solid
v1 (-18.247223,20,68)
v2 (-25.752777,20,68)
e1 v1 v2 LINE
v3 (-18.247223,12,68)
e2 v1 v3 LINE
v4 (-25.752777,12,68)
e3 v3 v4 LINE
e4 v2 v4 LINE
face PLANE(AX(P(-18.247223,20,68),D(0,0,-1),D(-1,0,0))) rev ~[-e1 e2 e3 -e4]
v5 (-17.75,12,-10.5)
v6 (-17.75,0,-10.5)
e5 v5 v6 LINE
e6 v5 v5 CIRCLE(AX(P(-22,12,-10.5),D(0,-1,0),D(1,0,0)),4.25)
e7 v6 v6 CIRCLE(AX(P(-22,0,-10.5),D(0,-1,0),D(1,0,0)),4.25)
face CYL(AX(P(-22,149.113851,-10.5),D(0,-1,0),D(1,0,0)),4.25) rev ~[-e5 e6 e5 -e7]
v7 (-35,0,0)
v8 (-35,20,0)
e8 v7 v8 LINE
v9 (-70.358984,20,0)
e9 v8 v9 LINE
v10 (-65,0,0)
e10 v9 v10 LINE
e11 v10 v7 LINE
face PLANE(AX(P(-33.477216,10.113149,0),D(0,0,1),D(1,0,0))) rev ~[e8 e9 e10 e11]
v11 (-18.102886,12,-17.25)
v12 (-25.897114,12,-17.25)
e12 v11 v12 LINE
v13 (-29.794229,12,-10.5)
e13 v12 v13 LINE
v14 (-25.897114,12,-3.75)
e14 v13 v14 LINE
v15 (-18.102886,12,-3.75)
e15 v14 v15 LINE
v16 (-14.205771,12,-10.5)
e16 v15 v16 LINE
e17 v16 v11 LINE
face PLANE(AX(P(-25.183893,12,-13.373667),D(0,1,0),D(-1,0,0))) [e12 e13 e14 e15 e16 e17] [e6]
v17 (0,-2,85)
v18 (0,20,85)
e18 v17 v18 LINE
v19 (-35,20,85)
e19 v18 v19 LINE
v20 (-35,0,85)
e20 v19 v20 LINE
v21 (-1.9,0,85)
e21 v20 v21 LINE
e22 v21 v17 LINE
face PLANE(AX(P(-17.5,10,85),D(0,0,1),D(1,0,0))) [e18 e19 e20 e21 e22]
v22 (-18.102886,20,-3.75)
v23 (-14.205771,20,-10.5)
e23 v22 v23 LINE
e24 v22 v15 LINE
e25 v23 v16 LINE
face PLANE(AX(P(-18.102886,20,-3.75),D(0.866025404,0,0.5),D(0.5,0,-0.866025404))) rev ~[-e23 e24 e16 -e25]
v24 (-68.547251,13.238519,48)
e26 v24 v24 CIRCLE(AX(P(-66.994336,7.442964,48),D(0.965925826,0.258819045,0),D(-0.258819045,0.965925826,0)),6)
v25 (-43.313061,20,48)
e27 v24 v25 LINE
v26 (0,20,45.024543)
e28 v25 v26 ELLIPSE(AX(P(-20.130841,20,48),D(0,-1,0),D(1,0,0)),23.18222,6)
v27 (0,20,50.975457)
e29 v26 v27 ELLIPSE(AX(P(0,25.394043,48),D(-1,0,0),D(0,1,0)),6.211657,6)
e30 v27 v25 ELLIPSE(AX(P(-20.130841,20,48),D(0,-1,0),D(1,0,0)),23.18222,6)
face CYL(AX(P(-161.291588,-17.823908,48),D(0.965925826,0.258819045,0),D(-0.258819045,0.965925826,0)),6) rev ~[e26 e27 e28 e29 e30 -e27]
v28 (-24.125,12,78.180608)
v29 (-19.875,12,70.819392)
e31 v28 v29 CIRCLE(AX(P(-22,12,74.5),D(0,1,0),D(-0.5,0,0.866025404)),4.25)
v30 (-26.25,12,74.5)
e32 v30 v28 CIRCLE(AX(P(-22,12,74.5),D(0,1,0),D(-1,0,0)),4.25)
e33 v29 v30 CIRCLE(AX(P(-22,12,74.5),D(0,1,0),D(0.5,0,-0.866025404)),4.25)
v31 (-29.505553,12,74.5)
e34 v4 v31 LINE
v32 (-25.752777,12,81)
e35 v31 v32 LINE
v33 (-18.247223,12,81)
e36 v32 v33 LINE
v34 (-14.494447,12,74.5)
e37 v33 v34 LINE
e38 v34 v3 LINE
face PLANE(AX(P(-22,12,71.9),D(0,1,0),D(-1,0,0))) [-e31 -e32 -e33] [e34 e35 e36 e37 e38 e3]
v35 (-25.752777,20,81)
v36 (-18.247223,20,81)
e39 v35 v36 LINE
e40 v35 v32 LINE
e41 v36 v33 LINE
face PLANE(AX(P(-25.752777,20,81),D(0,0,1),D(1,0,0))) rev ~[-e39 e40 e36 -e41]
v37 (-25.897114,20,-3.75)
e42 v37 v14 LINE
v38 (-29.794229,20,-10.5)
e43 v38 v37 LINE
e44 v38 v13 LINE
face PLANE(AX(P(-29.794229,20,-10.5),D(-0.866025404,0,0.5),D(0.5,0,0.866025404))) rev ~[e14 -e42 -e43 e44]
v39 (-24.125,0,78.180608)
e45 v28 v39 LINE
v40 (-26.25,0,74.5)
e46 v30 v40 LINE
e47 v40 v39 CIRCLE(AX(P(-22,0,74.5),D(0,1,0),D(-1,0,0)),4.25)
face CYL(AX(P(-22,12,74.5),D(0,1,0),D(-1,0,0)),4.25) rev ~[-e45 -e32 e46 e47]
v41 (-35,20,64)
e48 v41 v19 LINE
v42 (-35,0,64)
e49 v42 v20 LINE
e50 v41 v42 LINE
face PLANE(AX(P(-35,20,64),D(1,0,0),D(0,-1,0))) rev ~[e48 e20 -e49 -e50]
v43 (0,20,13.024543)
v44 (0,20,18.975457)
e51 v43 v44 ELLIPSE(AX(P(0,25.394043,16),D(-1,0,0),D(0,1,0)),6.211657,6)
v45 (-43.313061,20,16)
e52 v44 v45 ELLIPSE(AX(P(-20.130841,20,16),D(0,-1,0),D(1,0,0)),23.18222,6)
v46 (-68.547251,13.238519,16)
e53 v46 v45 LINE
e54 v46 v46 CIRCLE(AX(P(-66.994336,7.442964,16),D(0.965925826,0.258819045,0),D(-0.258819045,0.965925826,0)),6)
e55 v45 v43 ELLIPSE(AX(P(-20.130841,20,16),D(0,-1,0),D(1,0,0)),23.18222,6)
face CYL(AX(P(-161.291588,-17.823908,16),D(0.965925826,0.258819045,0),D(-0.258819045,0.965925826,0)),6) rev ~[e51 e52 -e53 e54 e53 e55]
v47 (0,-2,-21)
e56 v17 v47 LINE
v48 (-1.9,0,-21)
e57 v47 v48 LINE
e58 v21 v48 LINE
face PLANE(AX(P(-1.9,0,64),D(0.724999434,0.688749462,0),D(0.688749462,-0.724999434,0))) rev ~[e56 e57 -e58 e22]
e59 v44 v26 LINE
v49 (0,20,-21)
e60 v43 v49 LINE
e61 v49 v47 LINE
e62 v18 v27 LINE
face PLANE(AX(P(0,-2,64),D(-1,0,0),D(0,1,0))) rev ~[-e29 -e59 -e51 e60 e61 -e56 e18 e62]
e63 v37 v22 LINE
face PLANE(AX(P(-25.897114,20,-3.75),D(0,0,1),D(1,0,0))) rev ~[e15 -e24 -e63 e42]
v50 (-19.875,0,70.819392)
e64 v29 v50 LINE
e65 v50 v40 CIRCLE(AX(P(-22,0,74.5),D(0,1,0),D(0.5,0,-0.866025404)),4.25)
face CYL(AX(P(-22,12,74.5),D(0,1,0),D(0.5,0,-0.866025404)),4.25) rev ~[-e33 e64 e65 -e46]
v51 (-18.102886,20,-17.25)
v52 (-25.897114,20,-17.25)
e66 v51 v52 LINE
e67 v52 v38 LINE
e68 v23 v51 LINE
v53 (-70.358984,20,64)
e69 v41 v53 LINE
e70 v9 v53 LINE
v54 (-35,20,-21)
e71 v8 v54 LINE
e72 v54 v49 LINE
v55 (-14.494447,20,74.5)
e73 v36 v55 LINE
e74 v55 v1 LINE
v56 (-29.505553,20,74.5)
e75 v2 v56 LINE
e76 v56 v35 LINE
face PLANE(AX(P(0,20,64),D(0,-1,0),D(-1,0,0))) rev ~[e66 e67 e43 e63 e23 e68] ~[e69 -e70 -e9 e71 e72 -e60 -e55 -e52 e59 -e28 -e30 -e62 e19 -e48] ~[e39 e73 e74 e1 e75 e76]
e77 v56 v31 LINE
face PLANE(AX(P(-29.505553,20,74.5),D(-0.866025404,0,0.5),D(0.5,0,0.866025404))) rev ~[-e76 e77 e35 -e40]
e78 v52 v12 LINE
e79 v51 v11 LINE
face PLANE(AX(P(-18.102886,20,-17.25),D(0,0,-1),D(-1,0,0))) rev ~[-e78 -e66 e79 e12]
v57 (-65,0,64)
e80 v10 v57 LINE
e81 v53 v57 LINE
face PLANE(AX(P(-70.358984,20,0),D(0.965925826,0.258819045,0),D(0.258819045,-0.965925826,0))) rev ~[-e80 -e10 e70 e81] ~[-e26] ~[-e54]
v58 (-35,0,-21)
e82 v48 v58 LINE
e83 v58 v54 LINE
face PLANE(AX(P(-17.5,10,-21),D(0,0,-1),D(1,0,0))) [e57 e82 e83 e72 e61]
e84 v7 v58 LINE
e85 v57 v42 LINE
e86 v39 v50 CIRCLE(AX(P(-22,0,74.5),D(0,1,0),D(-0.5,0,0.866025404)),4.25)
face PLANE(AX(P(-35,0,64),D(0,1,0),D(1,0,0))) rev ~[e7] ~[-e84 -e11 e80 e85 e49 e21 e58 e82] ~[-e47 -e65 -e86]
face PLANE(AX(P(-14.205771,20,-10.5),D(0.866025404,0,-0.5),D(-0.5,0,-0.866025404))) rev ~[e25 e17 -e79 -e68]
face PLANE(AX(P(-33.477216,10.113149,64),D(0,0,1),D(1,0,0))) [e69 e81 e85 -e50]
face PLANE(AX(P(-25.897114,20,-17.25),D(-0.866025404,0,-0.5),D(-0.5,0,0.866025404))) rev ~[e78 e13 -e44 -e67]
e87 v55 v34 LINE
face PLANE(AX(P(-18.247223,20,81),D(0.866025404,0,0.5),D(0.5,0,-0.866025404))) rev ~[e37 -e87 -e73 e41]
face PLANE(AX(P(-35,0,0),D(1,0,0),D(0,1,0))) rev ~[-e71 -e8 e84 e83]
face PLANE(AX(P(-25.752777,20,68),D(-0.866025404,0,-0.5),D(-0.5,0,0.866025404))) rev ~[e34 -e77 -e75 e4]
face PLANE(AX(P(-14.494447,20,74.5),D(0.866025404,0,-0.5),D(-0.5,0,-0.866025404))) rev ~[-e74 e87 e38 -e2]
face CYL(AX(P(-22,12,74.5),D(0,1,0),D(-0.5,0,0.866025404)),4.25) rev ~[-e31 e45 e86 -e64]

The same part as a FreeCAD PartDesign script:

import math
import FreeCAD as App
import Part
import Sketcher

V = App.Vector
Q = App.Units.Quantity


def add_polygon(sketch, points):
    """Adds a closed chain of lines whose ends are joined by coincident constraints."""
    first, n = sketch.GeometryCount, len(points)
    for a, b in zip(points, points[1:] + points[:1]):
        sketch.addGeometry(Part.LineSegment(App.Vector(*a, 0), App.Vector(*b, 0)), False)
    for i in range(n):
        sketch.addConstraint(Sketcher.Constraint("Coincident", first + i, 2, first + (i + 1) % n, 1))

doc = App.newDocument("Part")
body = doc.addObject("PartDesign::Body", "Body")

# Sketch on XY plane
sketch1 = doc.addObject("Sketcher::SketchObject", "Sketch")
body.addObject(sketch1)
sketch1.AttachmentSupport = (doc.XY_Plane, [""])
sketch1.MapMode = "FlatFace"
add_polygon(sketch1, [(-65, 0), (-1.9, 0), (0, -2), (0, 20), (-70.4, 20)])  # lines 0-4
sketch1.addConstraint([
    Sketcher.Constraint("Horizontal", 0),
    Sketcher.Constraint("Vertical", 2),
    Sketcher.Constraint("Horizontal", 3),
    Sketcher.Constraint("PointOnObject", 0, 2, -1),
    Sketcher.Constraint("PointOnObject", 1, 2, -2),
    Sketcher.Constraint("DistanceY", 2, 1, 2, 2, 22.0),
    Sketcher.Constraint("Angle", 4, Q("-75 deg")),
    Sketcher.Constraint("DistanceX", 0, 1, 0, 2, 63.1),
    Sketcher.Constraint("DistanceY", 1, 2, -1, 1, 2.0),
    Sketcher.Constraint("DistanceX", 4, 2, -1, 1, 65.0),
])
pad1 = doc.addObject("PartDesign::Pad", "Pad")
body.addObject(pad1)
pad1.Profile = sketch1
pad1.Length = 64

# Sketch on an angled plane
sketch2 = doc.addObject("Sketcher::SketchObject", "Sketch001")
body.addObject(sketch2)
sketch2.Placement = App.Placement(V(-60.645826, -16.25, 0), App.Rotation(V(0.258819045, -0.965925826, 0), V(0, 0, 0.999999999), V(-0.965925826, -0.258819045, 0), "ZXY"))
sketch2.addGeometry([
    Part.Circle(V(-25, 48, 0), V(0, 0, 1), 6),
    Part.Circle(V(-25, 16, 0), V(0, 0, 1), 6),
], False)
sketch2.addConstraint([
    Sketcher.Constraint("Equal", 0, 1),
    Sketcher.Constraint("Vertical", 0, 3, 1, 3),
    Sketcher.Constraint("Diameter", 0, 12.0),
    Sketcher.Constraint("DistanceY", -1, 1, 0, 3, 48.0),
    Sketcher.Constraint("DistanceY", -1, 1, 1, 3, 16.0),
    Sketcher.Constraint("DistanceX", 0, 3, -1, 1, 24.528762),
])
doc.recompute()
hole = doc.addObject("PartDesign::Hole", "Hole")
body.addObject(hole)
hole.Profile = sketch2
hole.ThreadType = "None"
hole.Diameter = 12
hole.DepthType = "ThroughAll"

# Sketch on XY plane
sketch3 = doc.addObject("Sketcher::SketchObject", "Sketch002")
body.addObject(sketch3)
sketch3.AttachmentSupport = (doc.XY_Plane, [""])
sketch3.MapMode = "FlatFace"
add_polygon(sketch3, [(-35, 20), (0, 20), (0, -2), (-1.9, 0), (-35, 0)])  # lines 0-4
sketch3.addConstraint([
    Sketcher.Constraint("Horizontal", 0),
    Sketcher.Constraint("Vertical", 1),
    Sketcher.Constraint("Horizontal", 3),
    Sketcher.Constraint("Vertical", 4),
    Sketcher.Constraint("PointOnObject", 0, 2, -2),
    Sketcher.Constraint("PointOnObject", 2, 2, -1),
    Sketcher.Constraint("DistanceX", 0, 1, 0, 2, 35.0),
    Sketcher.Constraint("DistanceY", 1, 2, 1, 1, 22.0),
    Sketcher.Constraint("DistanceY", 4, 1, 4, 2, 20.0),
    Sketcher.Constraint("DistanceX", 3, 2, 3, 1, 33.1),
])
pad2 = doc.addObject("PartDesign::Pad", "Pad001")
body.addObject(pad2)
pad2.Profile = sketch3
pad2.Length = 21
pad2.Reversed = True

# Sketch on XZ plane
sketch4 = doc.addObject("Sketcher::SketchObject", "Sketch003")
body.addObject(sketch4)
sketch4.AttachmentSupport = (doc.XZ_Plane, [""])
sketch4.MapMode = "FlatFace"
sketch4.AttachmentOffset = App.Placement(V(0, 0, -20), App.Rotation())
add_polygon(sketch4, [(-26, -17), (-30, -10), (-26, -4), (-18, -4), (-14, -10), (-18, -17)])  # lines 0-5
sketch4.addConstraint([
    Sketcher.Constraint("Horizontal", 2),
    Sketcher.Constraint("Horizontal", 5),
    Sketcher.Constraint("Parallel", 0, 3),
    Sketcher.Constraint("Parallel", 1, 4),
    Sketcher.Constraint("Horizontal", 0, 2, 3, 2),
    Sketcher.Constraint("Vertical", 2, 2, 4, 2),
    Sketcher.Constraint("Vertical", 1, 2, 5, 2),
    Sketcher.Constraint("Angle", 0, Q("120 deg")),
    Sketcher.Constraint("DistanceY", 0, 2, -1, 1, 10.5),
    Sketcher.Constraint("DistanceY", 4, 2, 2, 2, 13.5),
    Sketcher.Constraint("DistanceX", 2, 1, 2, 2, 7.794229),
    Sketcher.Constraint("DistanceX", 0, 2, -1, 1, 29.794229),
])
pocket1 = doc.addObject("PartDesign::Pocket", "Pocket")
body.addObject(pocket1)
pocket1.Profile = sketch4
pocket1.Length = 8
pocket1.Reversed = True

# Sketch on XY plane
sketch5 = doc.addObject("Sketcher::SketchObject", "Sketch004")
body.addObject(sketch5)
sketch5.AttachmentSupport = (doc.XY_Plane, [""])
sketch5.MapMode = "FlatFace"
sketch5.AttachmentOffset = App.Placement(V(0, 0, 64), App.Rotation())
add_polygon(sketch5, [(0, 20), (-35, 20), (-35, 0), (-1.9, 0), (0, -2)])  # lines 0-4
sketch5.addConstraint([
    Sketcher.Constraint("Horizontal", 0),
    Sketcher.Constraint("Vertical", 1),
    Sketcher.Constraint("Horizontal", 2),
    Sketcher.Constraint("Vertical", 4),
    Sketcher.Constraint("PointOnObject", 1, 2, -1),
    Sketcher.Constraint("PointOnObject", 3, 2, -2),
    Sketcher.Constraint("DistanceX", 0, 2, 0, 1, 35.0),
    Sketcher.Constraint("DistanceY", 1, 2, 1, 1, 20.0),
    Sketcher.Constraint("DistanceY", 4, 1, 4, 2, 22.0),
    Sketcher.Constraint("DistanceX", 2, 1, 2, 2, 33.1),
])
pad3 = doc.addObject("PartDesign::Pad", "Pad002")
body.addObject(pad3)
pad3.Profile = sketch5
pad3.Length = 21

# Sketch on XZ plane
sketch6 = doc.addObject("Sketcher::SketchObject", "Sketch005")
body.addObject(sketch6)
sketch6.AttachmentSupport = (doc.XZ_Plane, [""])
sketch6.MapMode = "FlatFace"
sketch6.AttachmentOffset = App.Placement(V(0, 0, -20), App.Rotation())
add_polygon(sketch6, [(-26, 68), (-30, 74), (-26, 81), (-18, 81), (-14, 74), (-18, 68)])  # lines 0-5
sketch6.addConstraint([
    Sketcher.Constraint("Horizontal", 2),
    Sketcher.Constraint("Horizontal", 5),
    Sketcher.Constraint("Parallel", 0, 3),
    Sketcher.Constraint("Parallel", 1, 4),
    Sketcher.Constraint("Horizontal", 0, 2, 3, 2),
    Sketcher.Constraint("Vertical", 2, 2, 4, 2),
    Sketcher.Constraint("Vertical", 1, 2, 5, 2),
    Sketcher.Constraint("Angle", 0, Q("120 deg")),
    Sketcher.Constraint("DistanceY", -1, 1, 1, 2, 81.0),
    Sketcher.Constraint("DistanceY", -1, 1, 4, 2, 68.0),
    Sketcher.Constraint("DistanceX", 2, 1, 2, 2, 7.505553),
    Sketcher.Constraint("DistanceX", 0, 2, -1, 1, 29.505553),
])
pocket2 = doc.addObject("PartDesign::Pocket", "Pocket001")
body.addObject(pocket2)
pocket2.Profile = sketch6
pocket2.Length = 8
pocket2.Reversed = True

# Sketch on XZ plane
sketch7 = doc.addObject("Sketcher::SketchObject", "Sketch006")
body.addObject(sketch7)
sketch7.AttachmentSupport = (doc.XZ_Plane, [""])
sketch7.MapMode = "FlatFace"
sketch7.AttachmentOffset = App.Placement(V(0, 0, -12), App.Rotation())
sketch7.addGeometry([
    Part.ArcOfCircle(Part.Circle(V(-22, 74.5, 0), V(0, 0, 1), 4.2), math.radians(-60), math.radians(120)),
    Part.ArcOfCircle(Part.Circle(V(-22, 74.5, 0), V(0, 0, 1), 4.2), math.radians(180), math.radians(300)),
    Part.ArcOfCircle(Part.Circle(V(-22, 74.5, 0), V(0, 0, 1), 4.2), math.radians(120), math.radians(180)),
], False)
sketch7.addConstraint([
    Sketcher.Constraint("Tangent", 0, 1, 1, 2),
    Sketcher.Constraint("Tangent", 1, 1, 2, 2),
    Sketcher.Constraint("Tangent", 2, 1, 0, 2),
    Sketcher.Constraint("Horizontal", 2, 3, 1, 1),
    Sketcher.Constraint("Radius", 0, 4.25),
    Sketcher.Constraint("DistanceX", 0, 3, -1, 1, 22.0),
    Sketcher.Constraint("DistanceY", -1, 1, 0, 3, 74.5),
    Sketcher.Constraint("DistanceX", 2, 1, 0, 1, 4.25),
    Sketcher.Constraint("DistanceX", 0, 1, -1, 1, 19.875),
])
pocket3 = doc.addObject("PartDesign::Pocket", "Pocket002")
body.addObject(pocket3)
pocket3.Profile = sketch7
pocket3.Length = 25
pocket3.Reversed = True

# Sketch on XZ plane
sketch8 = doc.addObject("Sketcher::SketchObject", "Sketch007")
body.addObject(sketch8)
sketch8.AttachmentSupport = (doc.XZ_Plane, [""])
sketch8.MapMode = "FlatFace"
sketch8.AttachmentOffset = App.Placement(V(0, 0, -20), App.Rotation())
sketch8.addGeometry(Part.Circle(V(-22, -10.5, 0), V(0, 0, 1), 4.2), False)
sketch8.addConstraint([
    Sketcher.Constraint("Diameter", 0, 8.5),
    Sketcher.Constraint("DistanceX", 0, 3, -1, 1, 22.0),
    Sketcher.Constraint("DistanceY", 0, 3, -1, 1, 10.5),
])
doc.recompute()
hole2 = doc.addObject("PartDesign::Hole", "Hole001")
body.addObject(hole2)
hole2.Profile = sketch8
hole2.ThreadType = "None"
hole2.Diameter = 8.5
hole2.DepthType = "ThroughAll"
hole2.Reversed = True

doc.recompute()
